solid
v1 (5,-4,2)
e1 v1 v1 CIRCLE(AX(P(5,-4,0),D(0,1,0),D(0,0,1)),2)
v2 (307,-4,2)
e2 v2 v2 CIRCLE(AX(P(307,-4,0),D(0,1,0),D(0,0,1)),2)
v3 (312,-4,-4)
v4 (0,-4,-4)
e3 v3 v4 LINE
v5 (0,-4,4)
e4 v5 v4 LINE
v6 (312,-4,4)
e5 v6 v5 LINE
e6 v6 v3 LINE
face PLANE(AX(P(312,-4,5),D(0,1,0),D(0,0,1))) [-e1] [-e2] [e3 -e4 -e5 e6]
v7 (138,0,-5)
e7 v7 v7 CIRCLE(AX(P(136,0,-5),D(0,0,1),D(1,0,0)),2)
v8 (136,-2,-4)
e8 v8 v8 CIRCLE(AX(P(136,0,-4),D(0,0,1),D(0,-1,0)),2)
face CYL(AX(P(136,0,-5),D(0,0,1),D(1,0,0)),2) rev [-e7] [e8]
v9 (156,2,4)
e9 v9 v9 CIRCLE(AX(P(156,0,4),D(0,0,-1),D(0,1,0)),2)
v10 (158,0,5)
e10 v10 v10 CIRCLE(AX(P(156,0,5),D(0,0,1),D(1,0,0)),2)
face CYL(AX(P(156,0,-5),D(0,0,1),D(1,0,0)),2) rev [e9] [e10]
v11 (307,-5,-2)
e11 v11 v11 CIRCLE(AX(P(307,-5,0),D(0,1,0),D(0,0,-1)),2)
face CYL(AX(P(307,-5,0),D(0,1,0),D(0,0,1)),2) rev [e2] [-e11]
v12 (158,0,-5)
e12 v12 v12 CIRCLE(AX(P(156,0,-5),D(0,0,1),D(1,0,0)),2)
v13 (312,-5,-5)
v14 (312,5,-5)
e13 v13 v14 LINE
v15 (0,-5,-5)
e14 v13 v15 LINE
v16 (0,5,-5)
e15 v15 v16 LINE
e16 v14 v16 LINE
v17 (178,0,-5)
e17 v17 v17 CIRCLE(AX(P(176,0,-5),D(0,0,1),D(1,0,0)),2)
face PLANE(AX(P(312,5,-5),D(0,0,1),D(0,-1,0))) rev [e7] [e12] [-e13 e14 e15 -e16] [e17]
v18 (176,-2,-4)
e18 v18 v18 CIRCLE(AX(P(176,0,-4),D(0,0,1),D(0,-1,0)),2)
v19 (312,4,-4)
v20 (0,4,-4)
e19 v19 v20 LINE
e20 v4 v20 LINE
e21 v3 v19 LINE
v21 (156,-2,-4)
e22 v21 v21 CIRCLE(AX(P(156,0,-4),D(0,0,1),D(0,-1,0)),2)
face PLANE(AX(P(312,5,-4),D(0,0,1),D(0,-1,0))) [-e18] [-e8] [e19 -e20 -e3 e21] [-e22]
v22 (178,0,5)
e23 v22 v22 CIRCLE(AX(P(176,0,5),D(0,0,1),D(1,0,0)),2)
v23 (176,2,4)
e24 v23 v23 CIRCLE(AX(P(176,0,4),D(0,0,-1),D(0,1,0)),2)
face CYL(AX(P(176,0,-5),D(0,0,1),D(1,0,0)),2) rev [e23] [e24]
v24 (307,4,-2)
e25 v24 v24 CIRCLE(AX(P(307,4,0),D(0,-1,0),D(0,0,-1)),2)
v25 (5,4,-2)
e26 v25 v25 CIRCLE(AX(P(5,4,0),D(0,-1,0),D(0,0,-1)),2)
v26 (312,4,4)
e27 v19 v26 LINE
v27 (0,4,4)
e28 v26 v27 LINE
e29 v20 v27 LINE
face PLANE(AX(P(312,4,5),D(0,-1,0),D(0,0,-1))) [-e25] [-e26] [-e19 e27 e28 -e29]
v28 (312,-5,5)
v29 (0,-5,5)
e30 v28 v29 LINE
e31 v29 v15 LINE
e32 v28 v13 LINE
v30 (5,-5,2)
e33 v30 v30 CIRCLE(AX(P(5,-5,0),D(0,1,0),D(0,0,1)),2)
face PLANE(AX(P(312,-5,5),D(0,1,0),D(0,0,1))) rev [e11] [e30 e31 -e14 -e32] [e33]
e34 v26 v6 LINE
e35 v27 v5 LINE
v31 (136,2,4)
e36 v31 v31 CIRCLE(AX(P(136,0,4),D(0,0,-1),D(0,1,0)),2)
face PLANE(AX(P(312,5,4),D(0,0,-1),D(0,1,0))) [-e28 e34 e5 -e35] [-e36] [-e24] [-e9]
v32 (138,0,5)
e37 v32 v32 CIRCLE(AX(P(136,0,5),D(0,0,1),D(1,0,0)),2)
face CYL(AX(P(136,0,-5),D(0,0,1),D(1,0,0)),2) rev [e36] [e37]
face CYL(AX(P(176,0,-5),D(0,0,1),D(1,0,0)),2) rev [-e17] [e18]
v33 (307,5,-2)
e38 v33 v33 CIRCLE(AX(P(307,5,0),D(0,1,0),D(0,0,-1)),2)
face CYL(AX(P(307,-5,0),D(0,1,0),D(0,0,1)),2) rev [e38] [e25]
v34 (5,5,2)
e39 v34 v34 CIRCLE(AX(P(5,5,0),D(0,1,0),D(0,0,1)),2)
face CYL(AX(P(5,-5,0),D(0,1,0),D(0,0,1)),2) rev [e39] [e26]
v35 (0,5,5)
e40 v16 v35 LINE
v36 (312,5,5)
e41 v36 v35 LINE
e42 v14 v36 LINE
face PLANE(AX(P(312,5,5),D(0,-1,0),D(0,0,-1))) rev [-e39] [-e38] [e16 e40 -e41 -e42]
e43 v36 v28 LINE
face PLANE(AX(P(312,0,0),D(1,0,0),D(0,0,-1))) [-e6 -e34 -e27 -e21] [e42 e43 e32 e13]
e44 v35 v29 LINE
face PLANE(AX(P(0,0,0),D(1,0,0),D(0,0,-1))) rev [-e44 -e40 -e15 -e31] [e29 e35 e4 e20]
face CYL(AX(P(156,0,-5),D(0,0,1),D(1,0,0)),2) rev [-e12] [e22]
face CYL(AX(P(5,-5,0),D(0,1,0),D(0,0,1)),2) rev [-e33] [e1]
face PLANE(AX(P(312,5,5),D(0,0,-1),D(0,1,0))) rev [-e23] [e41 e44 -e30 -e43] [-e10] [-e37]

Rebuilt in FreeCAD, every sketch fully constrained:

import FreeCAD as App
import Part
import Sketcher
from FreeCAD import Vector
Q = App.Units.Quantity

doc = App.newDocument("Part")
body = doc.addObject("PartDesign::Body", "Body")

sketch1 = body.newObject("Sketcher::SketchObject", "Sketch")
sketch1.AttachmentSupport = (doc.getObject("YZ_Plane"), [""])
sketch1.MapMode = "FlatFace"
sketch1.addGeometry([
    Part.LineSegment(Vector(5, 5, 0), Vector(-5, 5, 0)),
    Part.LineSegment(Vector(-5, 5, 0), Vector(-5, -5, 0)),
    Part.LineSegment(Vector(-5, -5, 0), Vector(5, -5, 0)),
    Part.LineSegment(Vector(5, -5, 0), Vector(5, 5, 0)),
    Part.LineSegment(Vector(-4, -4, 0), Vector(-4, 4, 0)),
    Part.LineSegment(Vector(-4, 4, 0), Vector(4, 4, 0)),
    Part.LineSegment(Vector(4, 4, 0), Vector(4, -4, 0)),
    Part.LineSegment(Vector(4, -4, 0), Vector(-4, -4, 0)),
], False)
sketch1.addConstraint([
    Sketcher.Constraint("Coincident", 0, 2, 1, 1),
    Sketcher.Constraint("Coincident", 1, 2, 2, 1),
    Sketcher.Constraint("Coincident", 2, 2, 3, 1),
    Sketcher.Constraint("Coincident", 3, 2, 0, 1),
    Sketcher.Constraint("Coincident", 4, 2, 5, 1),
    Sketcher.Constraint("Coincident", 5, 2, 6, 1),
    Sketcher.Constraint("Coincident", 6, 2, 7, 1),
    Sketcher.Constraint("Coincident", 7, 2, 4, 1),
    Sketcher.Constraint("Horizontal", 0),
    Sketcher.Constraint("Vertical", 1),
    Sketcher.Constraint("Horizontal", 2),
    Sketcher.Constraint("Vertical", 3),
    Sketcher.Constraint("Vertical", 4),
    Sketcher.Constraint("Horizontal", 5),
    Sketcher.Constraint("Vertical", 6),
    Sketcher.Constraint("Horizontal", 7),
    Sketcher.Constraint("Symmetric", 0, 2, 2, 2, -1, 1),
    Sketcher.Constraint("Symmetric", 4, 2, 6, 2, -1, 1),
    Sketcher.Constraint("Equal", 2, 1),
    Sketcher.Constraint("Equal", 7, 4),
    Sketcher.Constraint("DistanceX", 0, 2, 0, 1, Q("10 mm")),
    Sketcher.Constraint("DistanceX", 5, 1, 5, 2, Q("8 mm")),
])
pad1 = body.newObject("PartDesign::Pad", "Pad")
pad1.Profile = sketch1
pad1.Length = 312

sketch2 = body.newObject("Sketcher::SketchObject", "Sketch001")
sketch2.AttachmentSupport = (doc.getObject("XZ_Plane"), [""])
sketch2.MapMode = "FlatFace"
sketch2.AttachmentOffset = App.Placement(Vector(0, 0, -5), App.Rotation())
sketch2.addGeometry([
    Part.Circle(Vector(5, 0, 0), Vector(0, 0, 1), 2),
    Part.Circle(Vector(307, 0, 0), Vector(0, 0, 1), 2),
], False)
sketch2.addConstraint([
    Sketcher.Constraint("Equal", 0, 1),
    Sketcher.Constraint("PointOnObject", 0, 3, -1),
    Sketcher.Constraint("PointOnObject", 1, 3, -1),
    Sketcher.Constraint("Diameter", 0, Q("4 mm")),
    Sketcher.Constraint("DistanceX", -1, 1, 0, 3, Q("5 mm")),
    Sketcher.Constraint("DistanceX", -1, 1, 1, 3, Q("307 mm")),
])
pocket1 = body.newObject("PartDesign::Pocket", "Pocket")
pocket1.Profile = sketch2
pocket1.Type = "ThroughAll"
pocket1.Reversed = True

sketch3 = body.newObject("Sketcher::SketchObject", "Sketch002")
sketch3.AttachmentSupport = (doc.getObject("XY_Plane"), [""])
sketch3.MapMode = "FlatFace"
sketch3.AttachmentOffset = App.Placement(Vector(0, 0, 5), App.Rotation())
sketch3.addGeometry([
    Part.Circle(Vector(136, 0, 0), Vector(0, 0, 1), 2),
    Part.Circle(Vector(156, 0, 0), Vector(0, 0, 1), 2),
    Part.Circle(Vector(176, 0, 0), Vector(0, 0, 1), 2),
], False)
sketch3.addConstraint([
    Sketcher.Constraint("Equal", 0, 1),
    Sketcher.Constraint("Equal", 1, 2),
    Sketcher.Constraint("PointOnObject", 0, 3, -1),
    Sketcher.Constraint("PointOnObject", 1, 3, -1),
    Sketcher.Constraint("PointOnObject", 2, 3, -1),
    Sketcher.Constraint("Diameter", 0, Q("4 mm")),
    Sketcher.Constraint("DistanceX", -1, 1, 0, 3, Q("136 mm")),
    Sketcher.Constraint("DistanceX", -1, 1, 1, 3, Q("156 mm")),
    Sketcher.Constraint("DistanceX", -1, 1, 2, 3, Q("176 mm")),
])
pocket2 = body.newObject("PartDesign::Pocket", "Pocket001")
pocket2.Profile = sketch3
pocket2.Type = "ThroughAll"

doc.recompute()
